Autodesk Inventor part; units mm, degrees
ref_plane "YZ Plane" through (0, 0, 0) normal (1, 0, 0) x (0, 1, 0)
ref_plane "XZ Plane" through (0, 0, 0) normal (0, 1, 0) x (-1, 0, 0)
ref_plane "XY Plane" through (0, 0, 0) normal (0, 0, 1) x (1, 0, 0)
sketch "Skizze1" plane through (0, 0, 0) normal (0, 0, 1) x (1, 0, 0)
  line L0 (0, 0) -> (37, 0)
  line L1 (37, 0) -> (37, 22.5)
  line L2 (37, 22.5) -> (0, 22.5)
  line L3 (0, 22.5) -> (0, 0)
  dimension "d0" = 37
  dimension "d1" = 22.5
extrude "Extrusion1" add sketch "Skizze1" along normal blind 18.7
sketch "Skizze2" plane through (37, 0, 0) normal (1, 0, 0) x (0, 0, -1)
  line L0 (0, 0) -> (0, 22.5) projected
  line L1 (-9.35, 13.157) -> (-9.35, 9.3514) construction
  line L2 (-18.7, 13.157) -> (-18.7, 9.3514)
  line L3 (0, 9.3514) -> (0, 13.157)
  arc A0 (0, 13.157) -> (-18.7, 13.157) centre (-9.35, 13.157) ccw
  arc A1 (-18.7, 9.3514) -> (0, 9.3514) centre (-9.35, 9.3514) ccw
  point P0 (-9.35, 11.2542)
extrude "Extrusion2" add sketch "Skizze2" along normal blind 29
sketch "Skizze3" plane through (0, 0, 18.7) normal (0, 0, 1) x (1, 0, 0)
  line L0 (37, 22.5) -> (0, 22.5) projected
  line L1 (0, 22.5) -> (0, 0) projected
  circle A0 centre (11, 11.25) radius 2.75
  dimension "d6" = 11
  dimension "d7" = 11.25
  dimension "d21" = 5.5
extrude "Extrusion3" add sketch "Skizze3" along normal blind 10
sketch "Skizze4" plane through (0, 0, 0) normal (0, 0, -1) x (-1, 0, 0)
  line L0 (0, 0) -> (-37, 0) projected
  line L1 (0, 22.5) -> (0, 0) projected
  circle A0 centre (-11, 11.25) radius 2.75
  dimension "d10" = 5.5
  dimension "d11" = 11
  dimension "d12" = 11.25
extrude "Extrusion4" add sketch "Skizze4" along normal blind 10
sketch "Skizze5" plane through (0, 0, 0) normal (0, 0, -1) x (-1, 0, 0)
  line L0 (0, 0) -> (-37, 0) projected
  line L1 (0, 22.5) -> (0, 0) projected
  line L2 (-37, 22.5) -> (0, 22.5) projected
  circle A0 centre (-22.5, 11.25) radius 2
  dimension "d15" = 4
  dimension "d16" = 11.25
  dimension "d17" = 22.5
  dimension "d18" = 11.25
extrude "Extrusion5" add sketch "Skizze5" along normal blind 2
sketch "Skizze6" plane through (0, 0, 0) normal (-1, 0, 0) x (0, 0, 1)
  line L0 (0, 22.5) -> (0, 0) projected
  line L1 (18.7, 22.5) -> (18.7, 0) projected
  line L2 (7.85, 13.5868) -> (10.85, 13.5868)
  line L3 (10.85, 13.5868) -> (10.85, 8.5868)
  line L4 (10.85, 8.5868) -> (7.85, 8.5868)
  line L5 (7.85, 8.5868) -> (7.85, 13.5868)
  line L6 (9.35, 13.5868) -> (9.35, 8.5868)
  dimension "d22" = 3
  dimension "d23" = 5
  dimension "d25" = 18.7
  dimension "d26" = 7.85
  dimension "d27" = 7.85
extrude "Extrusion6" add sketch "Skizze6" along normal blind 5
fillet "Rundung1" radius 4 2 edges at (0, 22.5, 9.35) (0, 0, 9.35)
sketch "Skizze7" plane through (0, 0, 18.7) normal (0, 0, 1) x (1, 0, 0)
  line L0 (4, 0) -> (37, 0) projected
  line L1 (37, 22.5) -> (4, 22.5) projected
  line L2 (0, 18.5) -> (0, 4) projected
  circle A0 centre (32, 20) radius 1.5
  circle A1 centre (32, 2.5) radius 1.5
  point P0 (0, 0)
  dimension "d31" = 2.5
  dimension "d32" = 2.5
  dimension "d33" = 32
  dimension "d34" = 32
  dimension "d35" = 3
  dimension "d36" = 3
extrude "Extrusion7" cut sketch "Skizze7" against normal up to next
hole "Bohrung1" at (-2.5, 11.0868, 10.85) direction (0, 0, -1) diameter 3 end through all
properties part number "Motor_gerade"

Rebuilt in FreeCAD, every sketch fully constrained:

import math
import FreeCAD as App
import Part
import Sketcher
from FreeCAD import Vector


def edges_at(feature, points):
    """Names of the edges that pass closest to the given points."""
    edges = feature.Shape.Edges
    near = lambda p: min(range(len(edges)), key=lambda i: edges[i].distToShape(Part.Vertex(*p))[0])
    return sorted({f"Edge{near(p) + 1}" for p in points})

doc = App.newDocument("Part")
body = doc.addObject("PartDesign::Body", "Body")

sketch1 = body.newObject("Sketcher::SketchObject", "Sketch")
sketch1.AttachmentSupport = (doc.getObject("XY_Plane"), [""])
sketch1.MapMode = "FlatFace"
sketch1.addGeometry([
    Part.LineSegment(Vector(0, 22, 0), Vector(0, 0, 0)),
    Part.LineSegment(Vector(0, 0, 0), Vector(37, 0, 0)),
    Part.LineSegment(Vector(37, 0, 0), Vector(37, 22, 0)),
    Part.LineSegment(Vector(37, 22, 0), Vector(0, 22, 0)),
], False)
sketch1.addConstraint([
    Sketcher.Constraint("Coincident", 0, 2, 1, 1),
    Sketcher.Constraint("Coincident", 1, 2, 2, 1),
    Sketcher.Constraint("Coincident", 2, 2, 3, 1),
    Sketcher.Constraint("Coincident", 3, 2, 0, 1),
    Sketcher.Constraint("Vertical", 0),
    Sketcher.Constraint("Horizontal", 1),
    Sketcher.Constraint("Vertical", 2),
    Sketcher.Constraint("Horizontal", 3),
    Sketcher.Constraint("Coincident", 0, 2, -1, 1),
    Sketcher.Constraint("DistanceX", 1, 1, 1, 2, 37.0),
    Sketcher.Constraint("DistanceY", 0, 2, 0, 1, 22.5),
])
pad1 = body.newObject("PartDesign::Pad", "Pad")
pad1.Profile = sketch1
pad1.Length = 18.7

sketch2 = body.newObject("Sketcher::SketchObject", "Sketch001")
sketch2.AttachmentSupport = (doc.getObject("YZ_Plane"), [""])
sketch2.MapMode = "FlatFace"
sketch2.AttachmentOffset = App.Placement(Vector(0, 0, 37), App.Rotation())
sketch2.addGeometry([
    Part.ArcOfCircle(Part.Circle(Vector(9.4, 9.3, 0), Vector(0, 0, 1), 9.3), math.radians(90), math.radians(270)),
    Part.LineSegment(Vector(9.4, 0, 0), Vector(13.2, 0, 0)),
    Part.ArcOfCircle(Part.Circle(Vector(13.2, 9.3, 0), Vector(0, 0, 1), 9.3), math.radians(-90), math.radians(90)),
    Part.LineSegment(Vector(13.2, 18.7, 0), Vector(9.4, 18.7, 0)),
], False)
sketch2.addConstraint([
    Sketcher.Constraint("Tangent", 0, 2, 1, 1),
    Sketcher.Constraint("Tangent", 1, 2, 2, 1),
    Sketcher.Constraint("Tangent", 2, 2, 3, 1),
    Sketcher.Constraint("Tangent", 3, 2, 0, 1),
    Sketcher.Constraint("Horizontal", 1),
    Sketcher.Constraint("Horizontal", 3),
    Sketcher.Constraint("PointOnObject", 0, 2, -1),
    Sketcher.Constraint("Radius", 0, 9.35),
    Sketcher.Constraint("DistanceX", 1, 1, 1, 2, 3.8056),
    Sketcher.Constraint("DistanceX", -1, 1, 2, 3, 13.157),
])
pad2 = body.newObject("PartDesign::Pad", "Pad001")
pad2.Profile = sketch2
pad2.Length = 29

sketch3 = body.newObject("Sketcher::SketchObject", "Sketch002")
sketch3.AttachmentSupport = (doc.getObject("XY_Plane"), [""])
sketch3.MapMode = "FlatFace"
sketch3.AttachmentOffset = App.Placement(Vector(0, 0, 18.7), App.Rotation())
sketch3.addGeometry(Part.Circle(Vector(11, 11.2, 0), Vector(0, 0, 1), 2.8), False)
sketch3.addConstraint([
    Sketcher.Constraint("Diameter", 0, 5.5),
    Sketcher.Constraint("DistanceX", -1, 1, 0, 3, 11.0),
    Sketcher.Constraint("DistanceY", -1, 1, 0, 3, 11.25),
])
pad3 = body.newObject("PartDesign::Pad", "Pad002")
pad3.Profile = sketch3
pad3.Length = 10

sketch4 = body.newObject("Sketcher::SketchObject", "Sketch003")
sketch4.AttachmentSupport = (doc.getObject("XY_Plane"), [""])
sketch4.MapMode = "FlatFace"
sketch4.addGeometry(Part.Circle(Vector(11, 11.2, 0), Vector(0, 0, 1), 2.8), False)
sketch4.addConstraint([
    Sketcher.Constraint("Diameter", 0, 5.5),
    Sketcher.Constraint("DistanceX", -1, 1, 0, 3, 11.0),
    Sketcher.Constraint("DistanceY", -1, 1, 0, 3, 11.25),
])
pad4 = body.newObject("PartDesign::Pad", "Pad003")
pad4.Profile = sketch4
pad4.Length = 10
pad4.Reversed = True

sketch5 = body.newObject("Sketcher::SketchObject", "Sketch004")
sketch5.AttachmentSupport = (doc.getObject("XY_Plane"), [""])
sketch5.MapMode = "FlatFace"
sketch5.addGeometry(Part.Circle(Vector(22.5, 11.2, 0), Vector(0, 0, 1), 2), False)
sketch5.addConstraint([
    Sketcher.Constraint("Diameter", 0, 4.0),
    Sketcher.Constraint("DistanceX", -1, 1, 0, 3, 22.5),
    Sketcher.Constraint("DistanceY", -1, 1, 0, 3, 11.25),
])
pad5 = body.newObject("PartDesign::Pad", "Pad004")
pad5.Profile = sketch5
pad5.Length = 2
pad5.Reversed = True

sketch6 = body.newObject("Sketcher::SketchObject", "Sketch005")
sketch6.AttachmentSupport = (doc.getObject("YZ_Plane"), [""])
sketch6.MapMode = "FlatFace"
sketch6.addGeometry([
    Part.LineSegment(Vector(13.6, 7.8, 0), Vector(8.6, 7.8, 0)),
    Part.LineSegment(Vector(8.6, 7.8, 0), Vector(8.6, 10.8, 0)),
    Part.LineSegment(Vector(8.6, 10.8, 0), Vector(13.6, 10.8, 0)),
    Part.LineSegment(Vector(13.6, 10.8, 0), Vector(13.6, 7.8, 0)),
], False)
sketch6.addConstraint([
    Sketcher.Constraint("Coincident", 0, 2, 1, 1),
    Sketcher.Constraint("Coincident", 1, 2, 2, 1),
    Sketcher.Constraint("Coincident", 2, 2, 3, 1),
    Sketcher.Constraint("Coincident", 3, 2, 0, 1),
    Sketcher.Constraint("Horizontal", 0),
    Sketcher.Constraint("Vertical", 1),
    Sketcher.Constraint("Horizontal", 2),
    Sketcher.Constraint("Vertical", 3),
    Sketcher.Constraint("DistanceX", 0, 2, 0, 1, 5.0),
    Sketcher.Constraint("DistanceY", 1, 1, 1, 2, 3.0),
    Sketcher.Constraint("DistanceY", -1, 1, 0, 2, 7.85),
    Sketcher.Constraint("DistanceX", -1, 1, 0, 2, 8.5868),
])
pad6 = body.newObject("PartDesign::Pad", "Pad005")
pad6.Profile = sketch6
pad6.Length = 5
pad6.Reversed = True
doc.recompute()

fillet = body.newObject("PartDesign::Fillet", "Fillet")
fillet.Base = (pad6, edges_at(pad6, [(0, 22.5, 9.35), (0, 0, 9.35)]))
fillet.Radius = 4

sketch7 = body.newObject("Sketcher::SketchObject", "Sketch006")
sketch7.AttachmentSupport = (doc.getObject("XY_Plane"), [""])
sketch7.MapMode = "FlatFace"
sketch7.AttachmentOffset = App.Placement(Vector(0, 0, 18.7), App.Rotation())
sketch7.addGeometry([
    Part.Circle(Vector(32, 20, 0), Vector(0, 0, 1), 1.5),
    Part.Circle(Vector(32, 2.5, 0), Vector(0, 0, 1), 1.5),
], False)
sketch7.addConstraint([
    Sketcher.Constraint("Equal", 0, 1),
    Sketcher.Constraint("Vertical", 0, 3, 1, 3),
    Sketcher.Constraint("Diameter", 0, 3.0),
    Sketcher.Constraint("DistanceX", -1, 1, 0, 3, 32.0),
    Sketcher.Constraint("DistanceY", -1, 1, 1, 3, 2.5),
    Sketcher.Constraint("DistanceY", -1, 1, 0, 3, 20.0),
])
pocket1 = body.newObject("PartDesign::Pocket", "Pocket")
pocket1.Profile = sketch7
pocket1.Type = "UpToFirst"

sketch8 = body.newObject("Sketcher::SketchObject", "Sketch007")
sketch8.AttachmentSupport = (doc.getObject("XY_Plane"), [""])
sketch8.MapMode = "FlatFace"
sketch8.AttachmentOffset = App.Placement(Vector(0, 0, 10.85), App.Rotation())
sketch8.addGeometry(Part.Circle(Vector(-2.5, 11.1, 0), Vector(0, 0, 1), 1.5), False)
sketch8.addConstraint([
    Sketcher.Constraint("Diameter", 0, 3.0),
    Sketcher.Constraint("DistanceX", 0, 3, -1, 1, 2.5),
    Sketcher.Constraint("DistanceY", -1, 1, 0, 3, 11.0868),
])
doc.recompute()
hole = body.newObject("PartDesign::Hole", "Hole")
hole.Profile = sketch8
hole.ThreadType = "None"
hole.Diameter = 3
hole.DepthType = "ThroughAll"

doc.recompute()
